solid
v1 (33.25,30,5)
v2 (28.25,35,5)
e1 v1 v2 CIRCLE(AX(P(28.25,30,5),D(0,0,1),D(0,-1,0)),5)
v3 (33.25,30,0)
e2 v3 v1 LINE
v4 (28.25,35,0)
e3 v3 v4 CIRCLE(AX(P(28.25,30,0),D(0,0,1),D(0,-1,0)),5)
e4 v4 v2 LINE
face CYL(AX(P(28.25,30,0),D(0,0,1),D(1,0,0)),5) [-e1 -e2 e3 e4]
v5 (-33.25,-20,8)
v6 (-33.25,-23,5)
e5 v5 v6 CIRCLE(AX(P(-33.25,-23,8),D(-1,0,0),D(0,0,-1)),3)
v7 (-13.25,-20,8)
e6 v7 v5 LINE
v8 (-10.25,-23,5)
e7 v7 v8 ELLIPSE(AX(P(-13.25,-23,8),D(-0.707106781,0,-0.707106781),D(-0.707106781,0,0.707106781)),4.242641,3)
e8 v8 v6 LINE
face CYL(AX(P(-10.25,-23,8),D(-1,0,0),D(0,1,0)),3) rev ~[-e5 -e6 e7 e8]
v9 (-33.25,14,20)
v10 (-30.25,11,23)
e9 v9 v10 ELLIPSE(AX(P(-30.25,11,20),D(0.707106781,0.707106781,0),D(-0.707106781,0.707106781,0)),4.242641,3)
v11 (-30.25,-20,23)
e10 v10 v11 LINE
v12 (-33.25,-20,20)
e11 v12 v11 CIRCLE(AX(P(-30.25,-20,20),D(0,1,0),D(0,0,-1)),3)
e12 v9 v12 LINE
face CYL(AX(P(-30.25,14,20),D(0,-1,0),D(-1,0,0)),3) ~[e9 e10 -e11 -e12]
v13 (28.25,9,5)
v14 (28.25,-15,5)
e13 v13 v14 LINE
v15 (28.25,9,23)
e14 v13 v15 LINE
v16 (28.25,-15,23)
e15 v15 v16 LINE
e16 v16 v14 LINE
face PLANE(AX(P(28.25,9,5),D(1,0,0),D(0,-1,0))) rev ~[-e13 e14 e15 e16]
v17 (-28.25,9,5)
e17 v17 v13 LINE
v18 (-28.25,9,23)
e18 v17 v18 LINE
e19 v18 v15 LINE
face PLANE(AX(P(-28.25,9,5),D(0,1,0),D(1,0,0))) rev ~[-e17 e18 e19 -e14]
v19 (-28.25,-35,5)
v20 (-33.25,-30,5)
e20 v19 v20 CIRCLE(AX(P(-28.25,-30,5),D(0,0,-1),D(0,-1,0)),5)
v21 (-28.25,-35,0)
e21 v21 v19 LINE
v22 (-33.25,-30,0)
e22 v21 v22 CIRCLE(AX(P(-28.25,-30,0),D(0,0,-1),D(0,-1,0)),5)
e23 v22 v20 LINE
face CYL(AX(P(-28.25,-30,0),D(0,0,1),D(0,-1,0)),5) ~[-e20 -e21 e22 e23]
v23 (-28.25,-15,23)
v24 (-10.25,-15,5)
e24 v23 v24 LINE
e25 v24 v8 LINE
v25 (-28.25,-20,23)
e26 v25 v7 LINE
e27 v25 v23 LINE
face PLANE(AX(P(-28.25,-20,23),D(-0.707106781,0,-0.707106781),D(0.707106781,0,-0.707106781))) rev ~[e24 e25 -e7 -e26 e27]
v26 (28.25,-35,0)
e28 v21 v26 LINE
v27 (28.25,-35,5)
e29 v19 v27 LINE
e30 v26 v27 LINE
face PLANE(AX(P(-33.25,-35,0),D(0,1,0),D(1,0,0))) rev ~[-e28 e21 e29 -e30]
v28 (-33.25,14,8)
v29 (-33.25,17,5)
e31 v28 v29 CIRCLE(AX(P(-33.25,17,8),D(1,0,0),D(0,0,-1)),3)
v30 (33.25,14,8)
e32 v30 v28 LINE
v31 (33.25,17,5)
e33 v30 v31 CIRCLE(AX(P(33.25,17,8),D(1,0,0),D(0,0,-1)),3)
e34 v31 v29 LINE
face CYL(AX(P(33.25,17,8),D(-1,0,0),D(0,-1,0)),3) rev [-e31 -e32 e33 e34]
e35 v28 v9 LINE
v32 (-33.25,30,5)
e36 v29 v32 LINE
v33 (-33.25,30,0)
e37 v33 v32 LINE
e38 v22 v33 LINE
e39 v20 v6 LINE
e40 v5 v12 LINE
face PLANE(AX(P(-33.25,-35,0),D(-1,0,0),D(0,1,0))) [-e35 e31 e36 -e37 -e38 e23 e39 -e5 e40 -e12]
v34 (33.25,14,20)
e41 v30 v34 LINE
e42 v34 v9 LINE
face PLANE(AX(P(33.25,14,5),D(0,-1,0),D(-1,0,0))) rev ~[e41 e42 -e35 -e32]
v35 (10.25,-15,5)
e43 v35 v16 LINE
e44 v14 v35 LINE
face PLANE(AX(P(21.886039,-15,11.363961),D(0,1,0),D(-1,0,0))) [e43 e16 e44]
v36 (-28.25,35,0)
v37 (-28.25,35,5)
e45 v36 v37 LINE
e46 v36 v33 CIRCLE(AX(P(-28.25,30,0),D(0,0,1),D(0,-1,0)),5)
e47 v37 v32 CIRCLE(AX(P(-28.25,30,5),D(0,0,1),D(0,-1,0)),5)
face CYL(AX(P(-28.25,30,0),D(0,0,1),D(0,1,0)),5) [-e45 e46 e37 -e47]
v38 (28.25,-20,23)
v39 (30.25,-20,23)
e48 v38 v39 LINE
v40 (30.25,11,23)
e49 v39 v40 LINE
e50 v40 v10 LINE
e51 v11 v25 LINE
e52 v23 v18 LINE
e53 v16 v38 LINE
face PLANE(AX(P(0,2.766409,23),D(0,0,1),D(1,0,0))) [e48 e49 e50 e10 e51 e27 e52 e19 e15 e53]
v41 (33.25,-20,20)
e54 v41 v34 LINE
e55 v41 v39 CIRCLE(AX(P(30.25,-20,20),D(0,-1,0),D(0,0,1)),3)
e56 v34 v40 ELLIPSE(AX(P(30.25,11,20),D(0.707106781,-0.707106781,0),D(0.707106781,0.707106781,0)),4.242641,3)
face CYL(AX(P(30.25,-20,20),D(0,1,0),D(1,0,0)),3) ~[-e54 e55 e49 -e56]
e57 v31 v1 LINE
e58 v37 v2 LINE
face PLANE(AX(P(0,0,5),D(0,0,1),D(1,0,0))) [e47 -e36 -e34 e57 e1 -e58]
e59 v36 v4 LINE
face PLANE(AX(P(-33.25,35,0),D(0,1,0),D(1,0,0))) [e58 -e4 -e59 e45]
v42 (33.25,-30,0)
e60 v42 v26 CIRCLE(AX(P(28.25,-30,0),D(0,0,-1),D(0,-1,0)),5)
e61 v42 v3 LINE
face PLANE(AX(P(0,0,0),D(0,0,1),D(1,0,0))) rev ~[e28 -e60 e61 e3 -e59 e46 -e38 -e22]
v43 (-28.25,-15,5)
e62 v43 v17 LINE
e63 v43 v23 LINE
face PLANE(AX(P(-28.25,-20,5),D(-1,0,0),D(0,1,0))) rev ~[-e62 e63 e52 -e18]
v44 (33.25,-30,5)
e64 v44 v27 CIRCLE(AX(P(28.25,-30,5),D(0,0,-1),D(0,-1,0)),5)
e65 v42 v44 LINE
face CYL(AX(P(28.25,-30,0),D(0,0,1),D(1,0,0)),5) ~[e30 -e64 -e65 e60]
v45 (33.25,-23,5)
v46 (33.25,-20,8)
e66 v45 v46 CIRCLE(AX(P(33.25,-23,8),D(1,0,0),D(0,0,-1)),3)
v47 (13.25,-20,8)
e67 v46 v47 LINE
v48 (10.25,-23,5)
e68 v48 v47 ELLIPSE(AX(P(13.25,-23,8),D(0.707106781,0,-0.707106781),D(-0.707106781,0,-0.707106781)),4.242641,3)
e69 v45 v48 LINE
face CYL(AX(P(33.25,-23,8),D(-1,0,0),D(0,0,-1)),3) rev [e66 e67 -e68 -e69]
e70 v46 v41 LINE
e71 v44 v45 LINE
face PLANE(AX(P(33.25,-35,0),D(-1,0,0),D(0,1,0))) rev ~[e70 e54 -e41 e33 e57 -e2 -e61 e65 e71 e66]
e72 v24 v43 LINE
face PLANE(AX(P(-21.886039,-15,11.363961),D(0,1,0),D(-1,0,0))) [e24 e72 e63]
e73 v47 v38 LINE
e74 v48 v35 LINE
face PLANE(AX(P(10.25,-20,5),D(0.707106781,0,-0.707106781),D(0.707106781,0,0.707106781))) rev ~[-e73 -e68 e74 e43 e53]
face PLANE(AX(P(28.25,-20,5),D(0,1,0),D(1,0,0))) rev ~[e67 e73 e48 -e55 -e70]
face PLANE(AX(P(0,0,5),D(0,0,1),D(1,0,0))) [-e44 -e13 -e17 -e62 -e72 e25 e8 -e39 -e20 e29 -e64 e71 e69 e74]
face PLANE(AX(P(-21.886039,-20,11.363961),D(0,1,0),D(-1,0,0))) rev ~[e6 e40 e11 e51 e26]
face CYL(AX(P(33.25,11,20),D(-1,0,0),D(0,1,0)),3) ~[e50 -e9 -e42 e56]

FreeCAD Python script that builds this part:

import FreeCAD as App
import Part
import Sketcher
from FreeCAD import Vector
Q = App.Units.Quantity


def edges_at(feature, points):
    """Names of the edges that pass closest to the given points."""
    edges = feature.Shape.Edges
    near = lambda p: min(range(len(edges)), key=lambda i: edges[i].distToShape(Part.Vertex(*p))[0])
    return sorted({f"Edge{near(p) + 1}" for p in points})

doc = App.newDocument("Part")
params = doc.addObject("Spreadsheet::Sheet", "Params")
for row, (alias, value) in enumerate([
    ("sketch1_height", "70 mm"),
    ("sketch1_width", "66.5 mm"),
    ("pad1_length", "5 mm"),
    ("sketch2_width", "5 mm"),
    ("sketch2_height", "29 mm"),
    ("sketch2_height2", "34 mm"),
    ("sketch2_width2", "56.5 mm"),
    ("pad2_length", "18 mm"),
    ("sketch3_width", "18 mm"),
    ("pad3_length", "5 mm"),
    ("fillet_radius", "5 mm"),
    ("fillet2_radius", "5 mm"),
    ("fillet3_radius", "5 mm"),
    ("fillet4_radius", "5 mm"),
    ("fillet5_radius", "3 mm"),
    ("fillet6_radius", "3 mm"),
    ("fillet7_radius", "3 mm"),
], start=1):
    params.set(f"A{row}", alias)
    params.set(f"B{row}", "=" + value)
    params.setAlias(f"B{row}", alias)

body = doc.addObject("PartDesign::Body", "Body")

# Sketch on XY plane
sketch1 = body.newObject("Sketcher::SketchObject", "Sketch")
sketch1.AttachmentSupport = (doc.getObject("XY_Plane"), [""])
sketch1.MapMode = "FlatFace"
sketch1.addGeometry([
    Part.LineSegment(Vector(-33.25, 35, 0), Vector(-33.25, -35, 0)),
    Part.LineSegment(Vector(-33.25, -35, 0), Vector(33.25, -35, 0)),
    Part.LineSegment(Vector(33.25, -35, 0), Vector(33.25, 35, 0)),
    Part.LineSegment(Vector(33.25, 35, 0), Vector(-33.25, 35, 0)),
], False)
sketch1.addConstraint([
    Sketcher.Constraint("Coincident", 0, 2, 1, 1),
    Sketcher.Constraint("Coincident", 1, 2, 2, 1),
    Sketcher.Constraint("Coincident", 2, 2, 3, 1),
    Sketcher.Constraint("Coincident", 3, 2, 0, 1),
    Sketcher.Constraint("Vertical", 0),
    Sketcher.Constraint("Horizontal", 1),
    Sketcher.Constraint("Vertical", 2),
    Sketcher.Constraint("Horizontal", 3),
    Sketcher.Constraint("Symmetric", 0, 2, 2, 2, -1, 1),
    Sketcher.Constraint("DistanceY", 0, 2, 0, 1, Q("70 mm")),
    Sketcher.Constraint("DistanceX", 1, 1, 1, 2, Q("66.5 mm")),
])
sketch1.setExpression("Constraints[9]", "Params.sketch1_height")
sketch1.setExpression("Constraints[10]", "Params.sketch1_width")
pad1 = body.newObject("PartDesign::Pad", "Pad")
pad1.Profile = sketch1
pad1.setExpression("Length", "Params.pad1_length")

# Sketch on XY plane
sketch2 = body.newObject("Sketcher::SketchObject", "Sketch001")
sketch2.AttachmentSupport = (doc.getObject("XY_Plane"), [""])
sketch2.MapMode = "FlatFace"
sketch2.AttachmentOffset = App.Placement(Vector(0, 0, 5), App.Rotation())
sketch2.addGeometry([
    Part.LineSegment(Vector(-28.25, -20, 0), Vector(-28.25, 9, 0)),  # 0
    Part.LineSegment(Vector(-28.25, 9, 0), Vector(28.25, 9, 0)),  # 1
    Part.LineSegment(Vector(28.25, 9, 0), Vector(28.25, -20, 0)),  # 2
    Part.LineSegment(Vector(28.25, -20, 0), Vector(33.25, -20, 0)),  # 3
    Part.LineSegment(Vector(33.25, -20, 0), Vector(33.25, 14, 0)),  # 4
    Part.LineSegment(Vector(33.25, 14, 0), Vector(-33.25, 14, 0)),  # 5
    Part.LineSegment(Vector(-33.25, 14, 0), Vector(-33.25, -20, 0)),  # 6
    Part.LineSegment(Vector(-33.25, -20, 0), Vector(-28.25, -20, 0)),  # 7
], False)
sketch2.addConstraint([
    Sketcher.Constraint("Coincident", 0, 2, 1, 1),
    Sketcher.Constraint("Coincident", 1, 2, 2, 1),
    Sketcher.Constraint("Coincident", 2, 2, 3, 1),
    Sketcher.Constraint("Coincident", 3, 2, 4, 1),
    Sketcher.Constraint("Coincident", 4, 2, 5, 1),
    Sketcher.Constraint("Coincident", 5, 2, 6, 1),
    Sketcher.Constraint("Coincident", 6, 2, 7, 1),
    Sketcher.Constraint("Coincident", 7, 2, 0, 1),
    Sketcher.Constraint("Vertical", 0),
    Sketcher.Constraint("Horizontal", 1),
    Sketcher.Constraint("Vertical", 2),
    Sketcher.Constraint("Horizontal", 3),
    Sketcher.Constraint("Vertical", 4),
    Sketcher.Constraint("Horizontal", 5),
    Sketcher.Constraint("Vertical", 6),
    Sketcher.Constraint("Horizontal", 7),
    Sketcher.Constraint("Symmetric", 3, 2, 6, 2, -2),
    Sketcher.Constraint("Equal", 3, 7),
    Sketcher.Constraint("DistanceX", 3, 1, 3, 2, Q("5 mm")),
    Sketcher.Constraint("DistanceY", 0, 1, 0, 2, Q("29 mm")),
    Sketcher.Constraint("DistanceY", 4, 1, 4, 2, Q("34 mm")),
    Sketcher.Constraint("DistanceX", 1, 1, 1, 2, Q("56.5 mm")),
    Sketcher.Constraint("DistanceY", -1, 1, 0, 2, Q("9 mm")),
])
sketch2.setExpression("Constraints[18]", "Params.sketch2_width")
sketch2.setExpression("Constraints[19]", "Params.sketch2_height")
sketch2.setExpression("Constraints[20]", "Params.sketch2_height2")
sketch2.setExpression("Constraints[21]", "Params.sketch2_width2")
pad2 = body.newObject("PartDesign::Pad", "Pad001")
pad2.Profile = sketch2
pad2.setExpression("Length", "Params.pad2_length")

# Sketch on XZ plane
sketch3 = body.newObject("Sketcher::SketchObject", "Sketch002")
sketch3.AttachmentSupport = (doc.getObject("XZ_Plane"), [""])
sketch3.MapMode = "FlatFace"
sketch3.AttachmentOffset = App.Placement(Vector(0, 0, 20), App.Rotation())
sketch3.addGeometry([
    Part.LineSegment(Vector(-10.25, 5, 0), Vector(-28.25, 23, 0)),  # 0
    Part.LineSegment(Vector(-28.25, 23, 0), Vector(-28.25, 5, 0)),  # 1
    Part.LineSegment(Vector(-28.25, 5, 0), Vector(-10.25, 5, 0)),  # 2
    Part.LineSegment(Vector(28.25, 23, 0), Vector(10.25, 5, 0)),  # 3
    Part.LineSegment(Vector(10.25, 5, 0), Vector(28.25, 5, 0)),  # 4
    Part.LineSegment(Vector(28.25, 5, 0), Vector(28.25, 23, 0)),  # 5
], False)
sketch3.addConstraint([
    Sketcher.Constraint("Coincident", 0, 2, 1, 1),
    Sketcher.Constraint("Coincident", 1, 2, 2, 1),
    Sketcher.Constraint("Coincident", 2, 2, 0, 1),
    Sketcher.Constraint("Coincident", 3, 2, 4, 1),
    Sketcher.Constraint("Coincident", 4, 2, 5, 1),
    Sketcher.Constraint("Coincident", 5, 2, 3, 1),
    Sketcher.Constraint("Vertical", 1),
    Sketcher.Constraint("Horizontal", 2),
    Sketcher.Constraint("Horizontal", 4),
    Sketcher.Constraint("Vertical", 5),
    Sketcher.Constraint("Symmetric", 2, 2, 3, 2, -2),
    Sketcher.Constraint("Symmetric", 0, 2, 5, 2, -2),
    Sketcher.Constraint("Perpendicular", 0, 3),
    Sketcher.Constraint("DistanceX", 2, 1, 2, 2, Q("18 mm")),
    Sketcher.Constraint("DistanceY", -1, 1, 0, 2, Q("23 mm")),
    Sketcher.Constraint("DistanceX", 2, 2, 3, 2, Q("20.5 mm")),
])
sketch3.setExpression("Constraints[13]", "Params.sketch3_width")
pad3 = body.newObject("PartDesign::Pad", "Pad002")
pad3.Profile = sketch3
pad3.setExpression("Length", "Params.pad3_length")
pad3.Reversed = True
doc.recompute()

fillet = body.newObject("PartDesign::Fillet", "Fillet")
fillet.Base = (pad3, edges_at(pad3, [(33.25, -35, 2.5)]))
fillet.setExpression("Radius", "Params.fillet_radius")
doc.recompute()

fillet2 = body.newObject("PartDesign::Fillet", "Fillet001")
fillet2.Base = (fillet, edges_at(fillet, [(-33.25, -35, 2.5)]))
fillet2.setExpression("Radius", "Params.fillet2_radius")
doc.recompute()

fillet3 = body.newObject("PartDesign::Fillet", "Fillet002")
fillet3.Base = (fillet2, edges_at(fillet2, [(33.25, 35, 2.5)]))
fillet3.setExpression("Radius", "Params.fillet3_radius")
doc.recompute()

fillet4 = body.newObject("PartDesign::Fillet", "Fillet003")
fillet4.Base = (fillet3, edges_at(fillet3, [(-33.25, 35, 2.5)]))
fillet4.setExpression("Radius", "Params.fillet4_radius")
doc.recompute()

fillet5 = body.newObject("PartDesign::Fillet", "Fillet004")
fillet5.Base = (fillet4, edges_at(fillet4, [(33.25, -3, 23), (0, 14, 23), (-33.25, -3, 23)]))
fillet5.setExpression("Radius", "Params.fillet5_radius")
doc.recompute()

fillet6 = body.newObject("PartDesign::Fillet", "Fillet005")
fillet6.Base = (fillet5, edges_at(fillet5, [(0, 14, 5)]))
fillet6.setExpression("Radius", "Params.fillet6_radius")
doc.recompute()

fillet7 = body.newObject("PartDesign::Fillet", "Fillet006")
fillet7.Base = (fillet6, edges_at(fillet6, [
    (21.75, -20, 5),
    (-21.75, -20, 5),
    (-21.75, -20, 5),
    (21.75, -20, 5),
]))
fillet7.setExpression("Radius", "Params.fillet7_radius")

doc.recompute()
